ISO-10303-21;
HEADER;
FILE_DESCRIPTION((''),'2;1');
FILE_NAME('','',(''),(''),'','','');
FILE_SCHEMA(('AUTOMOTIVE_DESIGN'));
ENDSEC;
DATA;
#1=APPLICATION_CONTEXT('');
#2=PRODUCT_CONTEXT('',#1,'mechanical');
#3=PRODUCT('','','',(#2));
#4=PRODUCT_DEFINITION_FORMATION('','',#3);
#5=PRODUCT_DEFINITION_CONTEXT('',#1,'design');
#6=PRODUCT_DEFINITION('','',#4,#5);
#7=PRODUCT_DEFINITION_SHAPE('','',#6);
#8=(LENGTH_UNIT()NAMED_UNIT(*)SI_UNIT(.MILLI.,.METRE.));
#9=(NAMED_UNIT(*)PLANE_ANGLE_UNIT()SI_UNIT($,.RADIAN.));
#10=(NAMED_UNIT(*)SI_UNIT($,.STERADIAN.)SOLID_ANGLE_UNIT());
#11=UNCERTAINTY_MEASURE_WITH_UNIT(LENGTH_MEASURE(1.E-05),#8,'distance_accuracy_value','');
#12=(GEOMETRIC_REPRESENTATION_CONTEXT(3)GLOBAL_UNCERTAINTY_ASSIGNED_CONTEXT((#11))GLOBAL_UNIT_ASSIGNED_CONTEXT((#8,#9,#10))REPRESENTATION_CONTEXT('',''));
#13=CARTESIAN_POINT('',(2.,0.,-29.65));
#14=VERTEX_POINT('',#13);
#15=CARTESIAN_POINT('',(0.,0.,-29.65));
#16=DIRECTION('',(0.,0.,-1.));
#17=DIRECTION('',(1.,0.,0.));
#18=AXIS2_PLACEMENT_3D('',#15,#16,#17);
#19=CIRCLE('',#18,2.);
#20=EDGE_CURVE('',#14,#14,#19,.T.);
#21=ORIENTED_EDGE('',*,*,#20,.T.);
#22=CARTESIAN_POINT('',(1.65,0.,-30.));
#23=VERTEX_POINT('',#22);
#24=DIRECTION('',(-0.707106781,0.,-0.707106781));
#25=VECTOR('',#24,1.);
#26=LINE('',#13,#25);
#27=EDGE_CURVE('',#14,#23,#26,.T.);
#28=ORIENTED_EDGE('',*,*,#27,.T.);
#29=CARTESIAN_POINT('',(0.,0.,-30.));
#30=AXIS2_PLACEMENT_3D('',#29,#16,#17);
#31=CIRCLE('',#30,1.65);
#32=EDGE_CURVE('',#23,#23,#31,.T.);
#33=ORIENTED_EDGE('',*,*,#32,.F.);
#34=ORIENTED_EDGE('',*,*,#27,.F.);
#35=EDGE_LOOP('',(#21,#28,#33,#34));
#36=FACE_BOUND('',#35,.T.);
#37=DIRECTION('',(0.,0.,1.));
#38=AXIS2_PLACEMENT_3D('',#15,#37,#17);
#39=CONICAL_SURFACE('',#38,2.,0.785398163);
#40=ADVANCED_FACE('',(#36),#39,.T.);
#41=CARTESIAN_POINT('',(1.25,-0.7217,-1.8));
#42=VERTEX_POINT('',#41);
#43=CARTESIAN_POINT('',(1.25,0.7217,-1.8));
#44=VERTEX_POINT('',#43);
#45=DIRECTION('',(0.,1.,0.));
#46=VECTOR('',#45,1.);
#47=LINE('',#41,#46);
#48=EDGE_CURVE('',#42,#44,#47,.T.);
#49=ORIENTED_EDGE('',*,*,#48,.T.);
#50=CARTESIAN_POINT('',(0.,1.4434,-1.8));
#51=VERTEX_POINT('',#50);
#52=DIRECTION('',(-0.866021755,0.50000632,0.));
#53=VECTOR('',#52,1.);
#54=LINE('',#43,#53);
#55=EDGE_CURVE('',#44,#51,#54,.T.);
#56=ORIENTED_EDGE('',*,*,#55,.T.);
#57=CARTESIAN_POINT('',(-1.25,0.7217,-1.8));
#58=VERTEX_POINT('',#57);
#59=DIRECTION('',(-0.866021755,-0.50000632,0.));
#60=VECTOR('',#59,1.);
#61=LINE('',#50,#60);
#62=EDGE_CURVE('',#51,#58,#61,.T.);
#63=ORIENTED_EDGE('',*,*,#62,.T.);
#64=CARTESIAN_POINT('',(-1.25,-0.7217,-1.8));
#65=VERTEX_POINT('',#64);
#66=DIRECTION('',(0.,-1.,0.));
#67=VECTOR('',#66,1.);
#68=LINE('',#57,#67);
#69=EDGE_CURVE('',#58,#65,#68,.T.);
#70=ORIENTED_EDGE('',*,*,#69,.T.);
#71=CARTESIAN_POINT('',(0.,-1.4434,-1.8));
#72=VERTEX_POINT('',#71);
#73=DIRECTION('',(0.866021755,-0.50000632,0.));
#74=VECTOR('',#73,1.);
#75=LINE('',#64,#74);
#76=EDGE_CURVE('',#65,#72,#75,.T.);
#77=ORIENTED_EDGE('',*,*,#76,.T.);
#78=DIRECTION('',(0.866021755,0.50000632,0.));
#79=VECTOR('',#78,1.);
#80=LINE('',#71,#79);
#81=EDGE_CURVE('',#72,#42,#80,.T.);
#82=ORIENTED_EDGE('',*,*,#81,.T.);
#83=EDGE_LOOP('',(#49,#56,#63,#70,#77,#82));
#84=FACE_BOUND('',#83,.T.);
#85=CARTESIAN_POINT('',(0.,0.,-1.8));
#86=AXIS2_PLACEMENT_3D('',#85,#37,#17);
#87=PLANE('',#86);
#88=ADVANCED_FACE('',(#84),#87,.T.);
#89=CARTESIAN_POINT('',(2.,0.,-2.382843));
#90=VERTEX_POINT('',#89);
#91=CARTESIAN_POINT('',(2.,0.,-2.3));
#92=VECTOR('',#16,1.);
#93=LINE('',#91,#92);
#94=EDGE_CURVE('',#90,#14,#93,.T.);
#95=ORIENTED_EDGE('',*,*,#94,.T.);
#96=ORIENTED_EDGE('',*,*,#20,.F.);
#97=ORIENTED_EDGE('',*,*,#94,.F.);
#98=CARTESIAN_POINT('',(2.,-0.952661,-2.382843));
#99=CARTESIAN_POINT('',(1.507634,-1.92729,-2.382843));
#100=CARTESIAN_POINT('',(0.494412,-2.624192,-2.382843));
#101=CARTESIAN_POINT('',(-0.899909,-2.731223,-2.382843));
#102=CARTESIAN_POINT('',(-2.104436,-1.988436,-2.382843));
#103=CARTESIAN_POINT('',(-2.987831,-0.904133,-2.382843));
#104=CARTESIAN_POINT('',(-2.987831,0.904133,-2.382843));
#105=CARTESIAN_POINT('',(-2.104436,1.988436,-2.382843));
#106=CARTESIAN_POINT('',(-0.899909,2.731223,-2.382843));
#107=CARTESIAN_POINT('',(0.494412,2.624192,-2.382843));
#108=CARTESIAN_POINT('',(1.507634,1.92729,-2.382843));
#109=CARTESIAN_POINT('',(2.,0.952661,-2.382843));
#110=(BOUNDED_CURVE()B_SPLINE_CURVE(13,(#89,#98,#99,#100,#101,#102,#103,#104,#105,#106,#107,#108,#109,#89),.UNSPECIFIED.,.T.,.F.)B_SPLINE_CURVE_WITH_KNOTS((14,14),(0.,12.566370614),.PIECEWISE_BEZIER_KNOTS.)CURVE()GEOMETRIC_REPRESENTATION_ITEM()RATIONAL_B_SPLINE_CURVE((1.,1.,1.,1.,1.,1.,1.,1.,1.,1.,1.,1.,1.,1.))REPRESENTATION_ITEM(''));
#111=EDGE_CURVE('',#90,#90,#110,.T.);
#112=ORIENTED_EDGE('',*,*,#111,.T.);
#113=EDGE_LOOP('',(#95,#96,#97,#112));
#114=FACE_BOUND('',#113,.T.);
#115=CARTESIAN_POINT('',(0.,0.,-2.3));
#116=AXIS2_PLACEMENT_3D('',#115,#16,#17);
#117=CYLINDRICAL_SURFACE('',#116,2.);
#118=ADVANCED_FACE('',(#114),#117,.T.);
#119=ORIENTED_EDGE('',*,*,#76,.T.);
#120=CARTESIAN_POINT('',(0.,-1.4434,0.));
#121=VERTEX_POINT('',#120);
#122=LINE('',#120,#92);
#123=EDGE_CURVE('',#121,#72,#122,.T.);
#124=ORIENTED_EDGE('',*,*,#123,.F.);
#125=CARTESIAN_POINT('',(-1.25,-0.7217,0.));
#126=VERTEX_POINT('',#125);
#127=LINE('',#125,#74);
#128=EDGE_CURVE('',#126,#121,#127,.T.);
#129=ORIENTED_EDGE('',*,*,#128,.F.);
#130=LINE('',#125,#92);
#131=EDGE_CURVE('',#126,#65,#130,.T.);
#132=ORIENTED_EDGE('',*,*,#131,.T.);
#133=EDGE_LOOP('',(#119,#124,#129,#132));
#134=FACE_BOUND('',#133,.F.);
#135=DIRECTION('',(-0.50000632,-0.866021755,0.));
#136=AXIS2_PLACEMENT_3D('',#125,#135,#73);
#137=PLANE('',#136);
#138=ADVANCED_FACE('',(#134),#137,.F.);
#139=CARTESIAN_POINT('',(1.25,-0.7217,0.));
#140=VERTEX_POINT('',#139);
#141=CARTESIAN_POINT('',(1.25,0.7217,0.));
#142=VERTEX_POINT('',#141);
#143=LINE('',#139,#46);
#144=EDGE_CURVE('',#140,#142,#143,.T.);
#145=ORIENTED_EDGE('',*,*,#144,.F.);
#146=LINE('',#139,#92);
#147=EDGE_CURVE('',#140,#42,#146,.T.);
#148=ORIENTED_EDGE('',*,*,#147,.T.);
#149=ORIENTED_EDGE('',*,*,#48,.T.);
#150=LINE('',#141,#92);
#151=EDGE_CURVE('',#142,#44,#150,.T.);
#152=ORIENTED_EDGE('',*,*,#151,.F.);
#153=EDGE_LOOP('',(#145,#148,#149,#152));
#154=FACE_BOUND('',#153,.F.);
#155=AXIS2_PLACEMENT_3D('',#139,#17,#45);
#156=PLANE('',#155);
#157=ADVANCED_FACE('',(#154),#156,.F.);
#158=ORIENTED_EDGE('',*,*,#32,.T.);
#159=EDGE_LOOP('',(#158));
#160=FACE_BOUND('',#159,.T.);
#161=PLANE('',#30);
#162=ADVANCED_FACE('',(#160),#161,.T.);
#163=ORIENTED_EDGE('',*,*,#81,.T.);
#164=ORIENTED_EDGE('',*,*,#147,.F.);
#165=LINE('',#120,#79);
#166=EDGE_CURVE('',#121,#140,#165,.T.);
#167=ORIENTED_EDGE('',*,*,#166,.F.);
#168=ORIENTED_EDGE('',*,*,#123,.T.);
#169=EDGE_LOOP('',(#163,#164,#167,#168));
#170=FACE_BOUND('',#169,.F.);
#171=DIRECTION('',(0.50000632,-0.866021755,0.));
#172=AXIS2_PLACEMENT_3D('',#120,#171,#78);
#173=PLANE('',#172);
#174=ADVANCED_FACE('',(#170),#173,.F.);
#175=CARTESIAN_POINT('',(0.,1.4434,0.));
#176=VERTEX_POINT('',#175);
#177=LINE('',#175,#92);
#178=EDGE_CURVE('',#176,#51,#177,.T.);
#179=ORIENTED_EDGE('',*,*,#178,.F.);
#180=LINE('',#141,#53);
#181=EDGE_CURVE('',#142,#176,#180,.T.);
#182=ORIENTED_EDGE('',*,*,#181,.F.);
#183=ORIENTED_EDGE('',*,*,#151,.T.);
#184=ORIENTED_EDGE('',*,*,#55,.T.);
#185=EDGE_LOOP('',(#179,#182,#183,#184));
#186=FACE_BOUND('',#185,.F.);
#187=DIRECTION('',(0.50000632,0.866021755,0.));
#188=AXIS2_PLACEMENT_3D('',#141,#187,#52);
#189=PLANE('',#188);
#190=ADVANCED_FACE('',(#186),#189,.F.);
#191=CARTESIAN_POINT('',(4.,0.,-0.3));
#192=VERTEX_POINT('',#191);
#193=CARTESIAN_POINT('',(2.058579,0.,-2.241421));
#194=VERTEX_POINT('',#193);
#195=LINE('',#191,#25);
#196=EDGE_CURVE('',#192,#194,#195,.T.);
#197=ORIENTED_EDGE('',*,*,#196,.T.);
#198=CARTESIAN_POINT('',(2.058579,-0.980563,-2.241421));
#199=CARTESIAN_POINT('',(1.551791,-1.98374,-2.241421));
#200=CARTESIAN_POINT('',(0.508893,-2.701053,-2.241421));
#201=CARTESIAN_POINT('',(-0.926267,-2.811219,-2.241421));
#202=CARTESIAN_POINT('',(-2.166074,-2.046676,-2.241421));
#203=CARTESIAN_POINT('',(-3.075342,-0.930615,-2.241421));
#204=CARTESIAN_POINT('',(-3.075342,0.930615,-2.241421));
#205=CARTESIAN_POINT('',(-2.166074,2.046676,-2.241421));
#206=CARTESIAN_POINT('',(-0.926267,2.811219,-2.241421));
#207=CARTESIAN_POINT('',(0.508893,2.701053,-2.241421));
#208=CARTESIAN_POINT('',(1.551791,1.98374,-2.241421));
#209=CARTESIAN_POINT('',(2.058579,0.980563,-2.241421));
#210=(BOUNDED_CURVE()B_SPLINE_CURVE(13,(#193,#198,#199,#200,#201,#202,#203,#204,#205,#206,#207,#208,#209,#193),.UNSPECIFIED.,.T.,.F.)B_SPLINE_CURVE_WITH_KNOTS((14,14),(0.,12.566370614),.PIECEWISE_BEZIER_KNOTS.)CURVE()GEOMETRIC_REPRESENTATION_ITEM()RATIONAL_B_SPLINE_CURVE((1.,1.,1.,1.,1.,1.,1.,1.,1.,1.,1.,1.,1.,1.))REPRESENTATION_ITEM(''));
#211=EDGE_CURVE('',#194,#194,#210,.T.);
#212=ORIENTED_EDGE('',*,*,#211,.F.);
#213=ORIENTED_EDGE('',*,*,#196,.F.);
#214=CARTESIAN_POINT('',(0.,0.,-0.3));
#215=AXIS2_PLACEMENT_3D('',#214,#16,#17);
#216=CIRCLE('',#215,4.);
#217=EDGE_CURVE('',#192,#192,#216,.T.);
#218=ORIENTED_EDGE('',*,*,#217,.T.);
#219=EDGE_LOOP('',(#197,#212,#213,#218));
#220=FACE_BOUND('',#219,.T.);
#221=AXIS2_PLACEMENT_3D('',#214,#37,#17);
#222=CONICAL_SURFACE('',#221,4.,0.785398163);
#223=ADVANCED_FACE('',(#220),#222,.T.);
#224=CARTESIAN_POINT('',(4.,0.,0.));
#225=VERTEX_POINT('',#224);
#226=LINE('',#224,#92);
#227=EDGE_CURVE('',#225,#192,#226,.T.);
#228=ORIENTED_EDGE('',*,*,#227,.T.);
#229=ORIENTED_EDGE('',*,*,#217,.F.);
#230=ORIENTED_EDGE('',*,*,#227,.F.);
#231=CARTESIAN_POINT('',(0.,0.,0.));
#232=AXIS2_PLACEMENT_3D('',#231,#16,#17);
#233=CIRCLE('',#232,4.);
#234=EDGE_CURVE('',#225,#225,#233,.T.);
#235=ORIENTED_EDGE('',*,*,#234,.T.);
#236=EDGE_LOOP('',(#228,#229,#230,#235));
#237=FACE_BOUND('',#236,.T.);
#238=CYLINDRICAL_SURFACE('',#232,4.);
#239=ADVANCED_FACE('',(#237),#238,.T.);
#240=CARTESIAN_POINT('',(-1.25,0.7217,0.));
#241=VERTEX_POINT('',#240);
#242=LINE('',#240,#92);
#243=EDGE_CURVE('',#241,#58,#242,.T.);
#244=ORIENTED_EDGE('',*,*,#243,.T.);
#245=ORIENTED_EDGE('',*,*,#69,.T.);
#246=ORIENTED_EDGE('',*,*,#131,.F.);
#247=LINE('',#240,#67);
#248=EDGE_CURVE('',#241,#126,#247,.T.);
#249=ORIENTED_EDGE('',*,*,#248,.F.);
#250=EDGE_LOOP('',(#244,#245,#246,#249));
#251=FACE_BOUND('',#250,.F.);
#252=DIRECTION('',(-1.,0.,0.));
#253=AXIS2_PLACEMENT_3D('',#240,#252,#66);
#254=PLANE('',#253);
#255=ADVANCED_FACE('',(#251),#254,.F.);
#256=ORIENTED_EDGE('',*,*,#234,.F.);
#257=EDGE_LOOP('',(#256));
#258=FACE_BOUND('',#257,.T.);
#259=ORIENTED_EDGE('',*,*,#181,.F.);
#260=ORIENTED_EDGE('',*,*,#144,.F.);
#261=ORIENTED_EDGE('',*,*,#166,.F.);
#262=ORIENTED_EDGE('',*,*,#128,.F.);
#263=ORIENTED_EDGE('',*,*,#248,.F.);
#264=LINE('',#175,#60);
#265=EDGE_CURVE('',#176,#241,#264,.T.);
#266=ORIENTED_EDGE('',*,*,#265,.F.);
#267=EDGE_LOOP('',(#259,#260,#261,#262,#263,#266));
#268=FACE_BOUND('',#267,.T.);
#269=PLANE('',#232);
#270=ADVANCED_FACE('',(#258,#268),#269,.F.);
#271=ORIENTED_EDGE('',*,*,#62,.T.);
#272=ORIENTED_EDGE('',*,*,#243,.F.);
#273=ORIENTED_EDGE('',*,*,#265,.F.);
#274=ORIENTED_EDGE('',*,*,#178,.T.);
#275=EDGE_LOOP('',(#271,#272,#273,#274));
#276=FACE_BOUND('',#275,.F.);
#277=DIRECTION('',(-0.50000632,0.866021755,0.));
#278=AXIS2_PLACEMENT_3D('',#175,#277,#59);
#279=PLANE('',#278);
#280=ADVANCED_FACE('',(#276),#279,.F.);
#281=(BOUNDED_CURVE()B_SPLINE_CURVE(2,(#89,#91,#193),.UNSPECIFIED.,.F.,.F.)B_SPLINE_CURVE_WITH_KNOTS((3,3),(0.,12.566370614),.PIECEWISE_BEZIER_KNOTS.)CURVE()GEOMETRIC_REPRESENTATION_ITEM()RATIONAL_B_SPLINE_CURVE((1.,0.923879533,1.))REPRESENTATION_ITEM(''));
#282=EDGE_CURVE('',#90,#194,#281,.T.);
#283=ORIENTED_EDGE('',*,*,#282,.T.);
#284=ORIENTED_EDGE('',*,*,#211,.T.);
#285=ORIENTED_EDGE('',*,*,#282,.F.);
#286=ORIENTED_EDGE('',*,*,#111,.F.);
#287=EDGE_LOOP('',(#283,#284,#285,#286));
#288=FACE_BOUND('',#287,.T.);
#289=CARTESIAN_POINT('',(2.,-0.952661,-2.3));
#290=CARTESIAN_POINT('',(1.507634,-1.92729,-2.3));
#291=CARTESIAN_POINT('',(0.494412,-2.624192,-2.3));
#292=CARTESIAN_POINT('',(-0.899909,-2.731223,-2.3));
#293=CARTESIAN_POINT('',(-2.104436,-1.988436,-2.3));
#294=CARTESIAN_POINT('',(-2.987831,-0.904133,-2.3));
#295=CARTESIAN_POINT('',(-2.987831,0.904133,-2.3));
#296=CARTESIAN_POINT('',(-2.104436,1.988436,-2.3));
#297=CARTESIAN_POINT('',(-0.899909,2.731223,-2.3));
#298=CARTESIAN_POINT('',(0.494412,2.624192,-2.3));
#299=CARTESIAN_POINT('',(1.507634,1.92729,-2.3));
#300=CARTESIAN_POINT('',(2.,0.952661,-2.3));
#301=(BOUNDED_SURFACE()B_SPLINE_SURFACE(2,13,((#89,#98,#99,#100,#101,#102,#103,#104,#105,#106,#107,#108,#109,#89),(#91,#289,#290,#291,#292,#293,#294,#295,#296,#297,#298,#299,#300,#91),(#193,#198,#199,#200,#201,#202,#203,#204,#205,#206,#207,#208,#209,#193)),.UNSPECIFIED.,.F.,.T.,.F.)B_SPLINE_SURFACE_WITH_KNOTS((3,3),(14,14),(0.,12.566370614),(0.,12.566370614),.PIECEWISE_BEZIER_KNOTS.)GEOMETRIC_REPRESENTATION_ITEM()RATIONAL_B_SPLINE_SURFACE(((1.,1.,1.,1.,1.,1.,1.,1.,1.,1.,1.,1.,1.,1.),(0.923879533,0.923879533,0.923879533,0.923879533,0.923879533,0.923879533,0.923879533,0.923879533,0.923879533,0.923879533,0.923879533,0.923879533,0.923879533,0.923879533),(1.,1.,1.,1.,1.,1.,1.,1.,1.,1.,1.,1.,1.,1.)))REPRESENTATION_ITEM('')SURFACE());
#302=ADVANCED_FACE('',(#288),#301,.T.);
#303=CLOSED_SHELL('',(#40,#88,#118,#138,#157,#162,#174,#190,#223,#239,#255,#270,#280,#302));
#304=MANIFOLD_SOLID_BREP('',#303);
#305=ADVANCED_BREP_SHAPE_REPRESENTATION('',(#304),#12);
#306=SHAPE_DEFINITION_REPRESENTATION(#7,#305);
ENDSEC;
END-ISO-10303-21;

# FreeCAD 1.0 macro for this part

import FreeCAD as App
import Part
import Sketcher
Q = App.Units.Quantity


def edges_at(feature, points):
    """Names of the edges that pass closest to the given points."""
    edges = feature.Shape.Edges
    near = lambda p: min(range(len(edges)), key=lambda i: edges[i].distToShape(Part.Vertex(*p))[0])
    return sorted({f"Edge{near(p) + 1}" for p in points})


def add_polygon(sketch, points):
    """Adds a closed chain of lines whose ends are joined by coincident constraints."""
    first, n = sketch.GeometryCount, len(points)
    for a, b in zip(points, points[1:] + points[:1]):
        sketch.addGeometry(Part.LineSegment(App.Vector(*a, 0), App.Vector(*b, 0)), False)
    for i in range(n):
        sketch.addConstraint(Sketcher.Constraint("Coincident", first + i, 2, first + (i + 1) % n, 1))

doc = App.newDocument("Part")
body = doc.addObject("PartDesign::Body", "Body")

sketch1 = body.newObject("Sketcher::SketchObject", "Sketch")
sketch1.AttachmentSupport = (doc.getObject("XZ_Plane"), [""])
sketch1.MapMode = "FlatFace"
add_polygon(sketch1, [(2, -2.3), (2, -30), (0, -30), (0, 0), (4, 0), (4, -0.3)])
sketch1.addConstraint(Sketcher.Constraint("Vertical", 0))
sketch1.addConstraint(Sketcher.Constraint("Horizontal", 1))
sketch1.addConstraint(Sketcher.Constraint("Vertical", 2))
sketch1.addConstraint(Sketcher.Constraint("Horizontal", 3))
sketch1.addConstraint(Sketcher.Constraint("Vertical", 4))
sketch1.addConstraint(Sketcher.Constraint("Coincident", 2, 2, -1, 1))
sketch1.addConstraint(Sketcher.Constraint("DistanceX", 1, 2, 1, 1, Q("2 mm")))
sketch1.addConstraint(Sketcher.Constraint("DistanceX", 3, 1, 3, 2, Q("4 mm")))
sketch1.addConstraint(Sketcher.Constraint("DistanceY", 2, 1, 2, 2, Q("30 mm")))
sketch1.addConstraint(Sketcher.Constraint("DistanceY", 4, 2, 4, 1, Q("0.3 mm")))
sketch1.addConstraint(Sketcher.Constraint("DistanceY", 5, 2, 4, 2, Q("2 mm")))
revolution = body.newObject("PartDesign::Revolution", "Revolution")
revolution.Profile = sketch1
revolution.ReferenceAxis = (sketch1, ["V_Axis"])
revolution.Angle = 360

sketch2 = body.newObject("Sketcher::SketchObject", "Sketch001")
sketch2.AttachmentSupport = (doc.getObject("XY_Plane"), [""])
sketch2.MapMode = "FlatFace"
add_polygon(sketch2, [(0, 1.4434), (-1.25, 0.7217), (-1.25, -0.7217), (0, -1.4434), (1.25, -0.7217), (1.25, 0.7217)])
sketch2.addConstraint(Sketcher.Constraint("Vertical", 1))
sketch2.addConstraint(Sketcher.Constraint("Vertical", 4))
sketch2.addConstraint(Sketcher.Constraint("Symmetric", 0, 2, 3, 2, -1, 1))
sketch2.addConstraint(Sketcher.Constraint("Symmetric", 2, 2, 5, 2, -1, 1))
sketch2.addConstraint(Sketcher.Constraint("PointOnObject", 2, 2, -2))
sketch2.addConstraint(Sketcher.Constraint("Parallel", 2, 5))
sketch2.addConstraint(Sketcher.Constraint("Horizontal", 1, 2, 3, 2))
sketch2.addConstraint(Sketcher.Constraint("DistanceX", 1, 2, 3, 2, Q("2.5 mm")))
sketch2.addConstraint(Sketcher.Constraint("Angle", 0, Q("-149.9996 deg")))
sketch2.addConstraint(Sketcher.Constraint("DistanceY", 1, 2, 1, 1, Q("1.4434 mm")))
pocket1 = body.newObject("PartDesign::Pocket", "Pocket")
pocket1.Profile = sketch2
pocket1.Length = 1.8
doc.recompute()

fillet = body.newObject("PartDesign::Fillet", "Fillet")
fillet.Base = (pocket1, edges_at(pocket1, [(-2, 0, -2.3)]))
fillet.Radius = 0.2
doc.recompute()

chamfer = body.newObject("PartDesign::Chamfer", "Chamfer")
chamfer.Base = (fillet, edges_at(fillet, [(-2, 0, -30)]))
chamfer.Size = 0.35

doc.recompute()
